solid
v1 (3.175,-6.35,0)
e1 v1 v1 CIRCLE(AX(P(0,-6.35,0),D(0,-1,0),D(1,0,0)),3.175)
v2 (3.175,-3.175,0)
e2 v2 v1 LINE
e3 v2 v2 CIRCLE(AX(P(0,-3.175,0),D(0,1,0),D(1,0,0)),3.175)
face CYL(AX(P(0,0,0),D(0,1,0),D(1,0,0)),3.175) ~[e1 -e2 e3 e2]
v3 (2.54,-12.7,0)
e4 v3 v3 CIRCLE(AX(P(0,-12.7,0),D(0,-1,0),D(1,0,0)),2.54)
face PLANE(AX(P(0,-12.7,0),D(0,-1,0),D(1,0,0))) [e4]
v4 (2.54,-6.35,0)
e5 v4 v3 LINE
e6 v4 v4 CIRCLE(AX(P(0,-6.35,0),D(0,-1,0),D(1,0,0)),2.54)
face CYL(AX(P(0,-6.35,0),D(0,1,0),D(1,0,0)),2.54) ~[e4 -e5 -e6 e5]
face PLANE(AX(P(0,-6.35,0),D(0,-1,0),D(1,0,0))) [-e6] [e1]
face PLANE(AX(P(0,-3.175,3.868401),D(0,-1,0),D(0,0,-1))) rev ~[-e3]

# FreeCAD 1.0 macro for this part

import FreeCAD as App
import Part
import Sketcher

V = App.Vector
Q = App.Units.Quantity

doc = App.newDocument("Part")
params = doc.addObject("Spreadsheet::Sheet", "Params")
for row, (alias, value) in enumerate([
    ("sketch1_diameter", "0.25 in"),
    ("pad1_length", "0.25 in"),
    ("sketch2_diameter", "0.2 in"),
    ("pad2_length", "0.25 in"),
    ("pad2_length2", "0.5 in"),
    ("pocket1_length", "0.5 in"),
    ("sketch4_height", "0.25 in"),
    ("pocket2_length", "1 in"),
], start=1):
    params.set(f"A{row}", alias)
    params.set(f"B{row}", "=" + value)
    params.setAlias(f"B{row}", alias)

body = doc.addObject("PartDesign::Body", "Body")

sketch1 = body.newObject("Sketcher::SketchObject", "Sketch")
sketch1.AttachmentSupport = (doc.getObject("XZ_Plane"), [""])
sketch1.MapMode = "FlatFace"
sketch1.addGeometry(Part.Circle(V(0, 0, 0), V(0, 0, 1), 3.2), False)
sketch1.addConstraint([
    Sketcher.Constraint("Coincident", 0, 3, -1, 1),
    Sketcher.Constraint("Diameter", 0, Q("0.25 in")),
])
sketch1.setExpression("Constraints[1]", "Params.sketch1_diameter")
pad1 = body.newObject("PartDesign::Pad", "Pad")
pad1.Profile = sketch1
pad1.setExpression("Length", "Params.pad1_length")

sketch2 = body.newObject("Sketcher::SketchObject", "Sketch001")
sketch2.AttachmentSupport = (doc.getObject("XZ_Plane"), [""])
sketch2.MapMode = "FlatFace"
sketch2.AttachmentOffset = App.Placement(V(0, 0, 0.25 * 25.4), App.Rotation())
sketch2.addGeometry(Part.Circle(V(0, 0, 0), V(0, 0, 1), 2.5), False)
sketch2.addConstraint([
    Sketcher.Constraint("Coincident", 0, 3, -1, 1),
    Sketcher.Constraint("Diameter", 0, Q("0.2 in")),
])
sketch2.setExpression("Constraints[1]", "Params.sketch2_diameter")
pad2 = body.newObject("PartDesign::Pad", "Pad001")
pad2.Profile = sketch2
pad2.Type = "TwoLengths"
pad2.setExpression("Length", "Params.pad2_length")
pad2.setExpression("Length2", "Params.pad2_length2")

sketch3 = body.newObject("Sketcher::SketchObject", "Sketch002")
sketch3.AttachmentSupport = (doc.getObject("YZ_Plane"), [""])
sketch3.MapMode = "FlatFace"
sketch3.addGeometry([
    Part.LineSegment(V(8, 4, 0), V(-3, 4, 0)),
    Part.LineSegment(V(-3, 4, 0), V(-3, -4, 0)),
    Part.LineSegment(V(-3, -4, 0), V(8, -4, 0)),
    Part.LineSegment(V(8, -4, 0), V(8, 4, 0)),
], False)
sketch3.addConstraint([
    Sketcher.Constraint("Coincident", 0, 2, 1, 1),
    Sketcher.Constraint("Coincident", 1, 2, 2, 1),
    Sketcher.Constraint("Coincident", 2, 2, 3, 1),
    Sketcher.Constraint("Coincident", 3, 2, 0, 1),
    Sketcher.Constraint("Vertical", 1),
    Sketcher.Constraint("Horizontal", 2),
    Sketcher.Constraint("Vertical", 3),
    Sketcher.Constraint("DistanceX", 0, 2, -1, 1, Q("0.125 in")),
    Sketcher.Constraint("DistanceY", 1, 2, 1, 1, 7.904391),
    Sketcher.Constraint("DistanceY", -1, 1, 0, 2, 3.868401),
    Sketcher.Constraint("DistanceX", 2, 1, 2, 2, 11.272555),
    Sketcher.Constraint("DistanceY", 3, 1, 3, 2, 7.684824),
])
pocket1 = body.newObject("PartDesign::Pocket", "Pocket")
pocket1.Profile = sketch3
pocket1.setExpression("Length", "Params.pocket1_length")

sketch4 = body.newObject("Sketcher::SketchObject", "Sketch003")
sketch4.AttachmentSupport = (doc.getObject("YZ_Plane"), [""])
sketch4.MapMode = "FlatFace"
sketch4.addGeometry([
    Part.LineSegment(V(7, 3, 0), V(7, -3, 0)),
    Part.LineSegment(V(7, -3, 0), V(-3, -3, 0)),
    Part.LineSegment(V(-3, -3, 0), V(-3, 3, 0)),
    Part.LineSegment(V(-3, 3, 0), V(7, 3, 0)),
], False)
sketch4.addConstraint([
    Sketcher.Constraint("Coincident", 0, 2, 1, 1),
    Sketcher.Constraint("Coincident", 1, 2, 2, 1),
    Sketcher.Constraint("Coincident", 2, 2, 3, 1),
    Sketcher.Constraint("Coincident", 3, 2, 0, 1),
    Sketcher.Constraint("Vertical", 0),
    Sketcher.Constraint("Horizontal", 1),
    Sketcher.Constraint("Vertical", 2),
    Sketcher.Constraint("Horizontal", 3),
    Sketcher.Constraint("DistanceY", 0, 2, 0, 1, Q("0.25 in")),
    Sketcher.Constraint("DistanceY", 0, 2, -1, 1, Q("0.125 in")),
    Sketcher.Constraint("DistanceX", 1, 2, -1, 1, Q("0.125 in")),
    Sketcher.Constraint("DistanceX", 1, 2, 1, 1, 10.36966),
])
sketch4.setExpression("Constraints[8]", "Params.sketch4_height")
pocket2 = body.newObject("PartDesign::Pocket", "Pocket001")
pocket2.Profile = sketch4
pocket2.setExpression("Length", "Params.pocket2_length")
pocket2.Reversed = True

doc.recompute()
